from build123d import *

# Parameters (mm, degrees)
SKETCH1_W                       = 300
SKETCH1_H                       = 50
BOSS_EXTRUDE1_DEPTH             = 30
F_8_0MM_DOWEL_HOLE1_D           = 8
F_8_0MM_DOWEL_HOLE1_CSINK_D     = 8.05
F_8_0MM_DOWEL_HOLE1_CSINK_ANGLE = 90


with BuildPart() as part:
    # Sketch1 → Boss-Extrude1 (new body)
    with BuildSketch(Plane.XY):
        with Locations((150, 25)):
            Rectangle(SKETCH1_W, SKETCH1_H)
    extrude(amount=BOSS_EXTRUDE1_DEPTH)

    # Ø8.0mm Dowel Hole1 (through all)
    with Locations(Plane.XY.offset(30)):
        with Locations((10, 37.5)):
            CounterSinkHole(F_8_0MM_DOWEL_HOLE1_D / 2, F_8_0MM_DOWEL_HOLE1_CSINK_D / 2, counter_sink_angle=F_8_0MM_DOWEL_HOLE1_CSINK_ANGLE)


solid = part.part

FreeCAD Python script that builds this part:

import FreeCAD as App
import Part
import Sketcher
from FreeCAD import Vector
Q = App.Units.Quantity

doc = App.newDocument("Part")
body = doc.addObject("PartDesign::Body", "Body")

# Sketch on XY plane
sketch1 = doc.addObject("Sketcher::SketchObject", "Sketch")
body.addObject(sketch1)
sketch1.AttachmentSupport = (doc.XY_Plane, [""])
sketch1.MapMode = "FlatFace"
sketch1.addGeometry([
    Part.LineSegment(Vector(0, 50, 0), Vector(0, 0, 0)),
    Part.LineSegment(Vector(0, 0, 0), Vector(300, 0, 0)),
    Part.LineSegment(Vector(300, 0, 0), Vector(300, 50, 0)),
    Part.LineSegment(Vector(300, 50, 0), Vector(0, 50, 0)),
], False)
sketch1.addConstraint([
    Sketcher.Constraint("Coincident", 0, 2, 1, 1),
    Sketcher.Constraint("Coincident", 1, 2, 2, 1),
    Sketcher.Constraint("Coincident", 2, 2, 3, 1),
    Sketcher.Constraint("Coincident", 3, 2, 0, 1),
    Sketcher.Constraint("Vertical", 0),
    Sketcher.Constraint("Horizontal", 1),
    Sketcher.Constraint("Vertical", 2),
    Sketcher.Constraint("Horizontal", 3),
    Sketcher.Constraint("Coincident", 0, 2, -1, 1),
    Sketcher.Constraint("DistanceX", 1, 1, 1, 2, Q("300 mm")),
    Sketcher.Constraint("DistanceY", 0, 2, 0, 1, Q("50 mm")),
])
pad1 = doc.addObject("PartDesign::Pad", "Pad")
body.addObject(pad1)
pad1.Profile = sketch1
pad1.Length = 30

# Sketch on XY plane
sketch2 = doc.addObject("Sketcher::SketchObject", "Sketch001")
body.addObject(sketch2)
sketch2.AttachmentSupport = (doc.XY_Plane, [""])
sketch2.MapMode = "FlatFace"
sketch2.AttachmentOffset = App.Placement(Vector(0, 0, 30), App.Rotation())
sketch2.addGeometry(Part.Circle(Vector(10, 37.5, 0), Vector(0, 0, 1), 4), False)
sketch2.addConstraint([
    Sketcher.Constraint("Diameter", 0, Q("8 mm")),
    Sketcher.Constraint("DistanceX", -1, 1, 0, 3, Q("10 mm")),
    Sketcher.Constraint("DistanceY", -1, 1, 0, 3, Q("37.5 mm")),
])
doc.recompute()
hole = doc.addObject("PartDesign::Hole", "Hole")
body.addObject(hole)
hole.Profile = sketch2
hole.ThreadType = "None"
hole.Diameter = 8
hole.DepthType = "ThroughAll"
hole.HoleCutType = "Countersink"
hole.HoleCutDiameter = 8.05
hole.HoleCutCountersinkAngle = 90

doc.recompute()
